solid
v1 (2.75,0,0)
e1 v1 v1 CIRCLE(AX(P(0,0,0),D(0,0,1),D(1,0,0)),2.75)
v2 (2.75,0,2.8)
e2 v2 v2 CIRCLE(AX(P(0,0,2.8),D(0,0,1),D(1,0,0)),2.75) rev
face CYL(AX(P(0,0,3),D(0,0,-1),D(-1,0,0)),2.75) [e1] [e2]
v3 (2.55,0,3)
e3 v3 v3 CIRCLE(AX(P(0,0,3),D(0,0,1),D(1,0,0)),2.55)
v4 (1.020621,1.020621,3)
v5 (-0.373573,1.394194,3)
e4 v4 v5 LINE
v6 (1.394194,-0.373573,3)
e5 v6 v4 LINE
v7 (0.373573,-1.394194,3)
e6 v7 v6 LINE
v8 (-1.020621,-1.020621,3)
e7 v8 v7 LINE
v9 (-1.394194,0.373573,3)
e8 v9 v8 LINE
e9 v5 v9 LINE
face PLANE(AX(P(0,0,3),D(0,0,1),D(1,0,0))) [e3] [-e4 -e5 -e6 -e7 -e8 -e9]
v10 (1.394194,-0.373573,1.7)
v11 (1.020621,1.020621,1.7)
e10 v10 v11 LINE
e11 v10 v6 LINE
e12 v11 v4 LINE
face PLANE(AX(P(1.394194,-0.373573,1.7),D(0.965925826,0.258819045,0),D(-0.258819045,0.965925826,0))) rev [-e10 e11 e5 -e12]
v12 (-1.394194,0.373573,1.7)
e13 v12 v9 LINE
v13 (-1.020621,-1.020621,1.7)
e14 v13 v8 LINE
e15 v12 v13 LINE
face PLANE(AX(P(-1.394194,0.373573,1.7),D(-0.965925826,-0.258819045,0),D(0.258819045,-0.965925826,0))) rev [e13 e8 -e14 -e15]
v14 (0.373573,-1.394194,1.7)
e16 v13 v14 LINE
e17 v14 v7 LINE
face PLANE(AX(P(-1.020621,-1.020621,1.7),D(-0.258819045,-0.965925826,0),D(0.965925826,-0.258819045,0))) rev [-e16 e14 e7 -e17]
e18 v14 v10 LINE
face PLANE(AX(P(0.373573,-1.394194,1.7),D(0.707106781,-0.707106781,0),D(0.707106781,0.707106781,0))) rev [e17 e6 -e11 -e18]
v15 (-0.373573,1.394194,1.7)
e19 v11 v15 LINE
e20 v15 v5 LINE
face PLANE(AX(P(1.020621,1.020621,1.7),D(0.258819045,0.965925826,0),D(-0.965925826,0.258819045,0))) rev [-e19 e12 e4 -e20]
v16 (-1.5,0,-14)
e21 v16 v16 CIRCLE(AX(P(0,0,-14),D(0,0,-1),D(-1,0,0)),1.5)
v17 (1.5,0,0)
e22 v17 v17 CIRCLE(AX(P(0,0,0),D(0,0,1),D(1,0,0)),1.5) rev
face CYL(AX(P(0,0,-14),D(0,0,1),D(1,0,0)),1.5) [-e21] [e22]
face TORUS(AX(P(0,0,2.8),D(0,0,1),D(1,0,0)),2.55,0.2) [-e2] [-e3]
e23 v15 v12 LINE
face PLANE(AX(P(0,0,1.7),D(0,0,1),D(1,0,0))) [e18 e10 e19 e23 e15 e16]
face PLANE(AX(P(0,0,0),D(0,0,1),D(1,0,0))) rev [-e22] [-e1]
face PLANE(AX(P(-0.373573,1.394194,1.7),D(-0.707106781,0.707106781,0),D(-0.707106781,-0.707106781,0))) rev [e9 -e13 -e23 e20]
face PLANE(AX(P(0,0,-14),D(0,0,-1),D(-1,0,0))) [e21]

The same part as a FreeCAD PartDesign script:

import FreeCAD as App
import Part
import Sketcher
Q = App.Units.Quantity


def edges_at(feature, points):
    """Names of the edges that pass closest to the given points."""
    edges = feature.Shape.Edges
    near = lambda p: min(range(len(edges)), key=lambda i: edges[i].distToShape(Part.Vertex(*p))[0])
    return sorted({f"Edge{near(p) + 1}" for p in points})

doc = App.newDocument("Part")
body = doc.addObject("PartDesign::Body", "Body")

# Sketch on XY plane
sketch1 = body.newObject("Sketcher::SketchObject", "Sketch")
sketch1.AttachmentSupport = (doc.getObject("XY_Plane"), [""])
sketch1.MapMode = "FlatFace"
sketch1.addGeometry(Part.Circle(App.Vector(0, 0, 0), App.Vector(0, 0, 1), 2.8), False)
sketch1.addConstraint([
    Sketcher.Constraint("Coincident", 0, 3, -1, 1),
    Sketcher.Constraint("Diameter", 0, 5.5),
])
pad1 = body.newObject("PartDesign::Pad", "Pad")
pad1.Profile = sketch1
pad1.Length = 3

# Sketch on XY plane
sketch2 = body.newObject("Sketcher::SketchObject", "Sketch001")
sketch2.AttachmentSupport = (doc.getObject("XY_Plane"), [""])
sketch2.MapMode = "FlatFace"
sketch2.AttachmentOffset = App.Placement(App.Vector(0, 0, 3), App.Rotation())
sketch2.addGeometry([
    Part.LineSegment(App.Vector(-1, -1, 0), App.Vector(0.4, -1.4, 0)),  # 0
    Part.LineSegment(App.Vector(0.4, -1.4, 0), App.Vector(1.4, -0.4, 0)),  # 1
    Part.LineSegment(App.Vector(1.4, -0.4, 0), App.Vector(1, 1, 0)),  # 2
    Part.LineSegment(App.Vector(1, 1, 0), App.Vector(-0.4, 1.4, 0)),  # 3
    Part.LineSegment(App.Vector(-0.4, 1.4, 0), App.Vector(-1.4, 0.4, 0)),  # 4
    Part.LineSegment(App.Vector(-1.4, 0.4, 0), App.Vector(-1, -1, 0)),  # 5
], False)
sketch2.addConstraint([
    Sketcher.Constraint("Coincident", 0, 2, 1, 1),
    Sketcher.Constraint("Coincident", 1, 2, 2, 1),
    Sketcher.Constraint("Coincident", 2, 2, 3, 1),
    Sketcher.Constraint("Coincident", 3, 2, 4, 1),
    Sketcher.Constraint("Coincident", 4, 2, 5, 1),
    Sketcher.Constraint("Coincident", 5, 2, 0, 1),
    Sketcher.Constraint("Symmetric", 0, 2, 3, 2, -1, 1),
    Sketcher.Constraint("Symmetric", 1, 2, 4, 2, -1, 1),
    Sketcher.Constraint("Symmetric", 2, 2, 5, 2, -1, 1),
    Sketcher.Constraint("Equal", 0, 1),
    Sketcher.Constraint("Equal", 1, 2),
    Sketcher.Constraint("Angle", 0, Q("-15 deg")),
    Sketcher.Constraint("Angle", 1, Q("45 deg")),
    Sketcher.Constraint("Angle", 2, Q("105 deg")),
    Sketcher.Constraint("DistanceX", -1, 1, 2, 2, 1.020621),
])
pocket1 = body.newObject("PartDesign::Pocket", "Pocket")
pocket1.Profile = sketch2
pocket1.Length = 1.3

# Sketch on XY plane
sketch3 = body.newObject("Sketcher::SketchObject", "Sketch002")
sketch3.AttachmentSupport = (doc.getObject("XY_Plane"), [""])
sketch3.MapMode = "FlatFace"
sketch3.addGeometry(Part.Circle(App.Vector(0, 0, 0), App.Vector(0, 0, 1), 1.5), False)
sketch3.addConstraint([
    Sketcher.Constraint("Coincident", 0, 3, -1, 1),
    Sketcher.Constraint("Diameter", 0, 3.0),
])
pad2 = body.newObject("PartDesign::Pad", "Pad001")
pad2.Profile = sketch3
pad2.Length = 14
pad2.Reversed = True
doc.recompute()

fillet = body.newObject("PartDesign::Fillet", "Fillet")
fillet.Base = (pad2, edges_at(pad2, [(-2.75, 0, 3)]))
fillet.Radius = 0.2

doc.recompute()
